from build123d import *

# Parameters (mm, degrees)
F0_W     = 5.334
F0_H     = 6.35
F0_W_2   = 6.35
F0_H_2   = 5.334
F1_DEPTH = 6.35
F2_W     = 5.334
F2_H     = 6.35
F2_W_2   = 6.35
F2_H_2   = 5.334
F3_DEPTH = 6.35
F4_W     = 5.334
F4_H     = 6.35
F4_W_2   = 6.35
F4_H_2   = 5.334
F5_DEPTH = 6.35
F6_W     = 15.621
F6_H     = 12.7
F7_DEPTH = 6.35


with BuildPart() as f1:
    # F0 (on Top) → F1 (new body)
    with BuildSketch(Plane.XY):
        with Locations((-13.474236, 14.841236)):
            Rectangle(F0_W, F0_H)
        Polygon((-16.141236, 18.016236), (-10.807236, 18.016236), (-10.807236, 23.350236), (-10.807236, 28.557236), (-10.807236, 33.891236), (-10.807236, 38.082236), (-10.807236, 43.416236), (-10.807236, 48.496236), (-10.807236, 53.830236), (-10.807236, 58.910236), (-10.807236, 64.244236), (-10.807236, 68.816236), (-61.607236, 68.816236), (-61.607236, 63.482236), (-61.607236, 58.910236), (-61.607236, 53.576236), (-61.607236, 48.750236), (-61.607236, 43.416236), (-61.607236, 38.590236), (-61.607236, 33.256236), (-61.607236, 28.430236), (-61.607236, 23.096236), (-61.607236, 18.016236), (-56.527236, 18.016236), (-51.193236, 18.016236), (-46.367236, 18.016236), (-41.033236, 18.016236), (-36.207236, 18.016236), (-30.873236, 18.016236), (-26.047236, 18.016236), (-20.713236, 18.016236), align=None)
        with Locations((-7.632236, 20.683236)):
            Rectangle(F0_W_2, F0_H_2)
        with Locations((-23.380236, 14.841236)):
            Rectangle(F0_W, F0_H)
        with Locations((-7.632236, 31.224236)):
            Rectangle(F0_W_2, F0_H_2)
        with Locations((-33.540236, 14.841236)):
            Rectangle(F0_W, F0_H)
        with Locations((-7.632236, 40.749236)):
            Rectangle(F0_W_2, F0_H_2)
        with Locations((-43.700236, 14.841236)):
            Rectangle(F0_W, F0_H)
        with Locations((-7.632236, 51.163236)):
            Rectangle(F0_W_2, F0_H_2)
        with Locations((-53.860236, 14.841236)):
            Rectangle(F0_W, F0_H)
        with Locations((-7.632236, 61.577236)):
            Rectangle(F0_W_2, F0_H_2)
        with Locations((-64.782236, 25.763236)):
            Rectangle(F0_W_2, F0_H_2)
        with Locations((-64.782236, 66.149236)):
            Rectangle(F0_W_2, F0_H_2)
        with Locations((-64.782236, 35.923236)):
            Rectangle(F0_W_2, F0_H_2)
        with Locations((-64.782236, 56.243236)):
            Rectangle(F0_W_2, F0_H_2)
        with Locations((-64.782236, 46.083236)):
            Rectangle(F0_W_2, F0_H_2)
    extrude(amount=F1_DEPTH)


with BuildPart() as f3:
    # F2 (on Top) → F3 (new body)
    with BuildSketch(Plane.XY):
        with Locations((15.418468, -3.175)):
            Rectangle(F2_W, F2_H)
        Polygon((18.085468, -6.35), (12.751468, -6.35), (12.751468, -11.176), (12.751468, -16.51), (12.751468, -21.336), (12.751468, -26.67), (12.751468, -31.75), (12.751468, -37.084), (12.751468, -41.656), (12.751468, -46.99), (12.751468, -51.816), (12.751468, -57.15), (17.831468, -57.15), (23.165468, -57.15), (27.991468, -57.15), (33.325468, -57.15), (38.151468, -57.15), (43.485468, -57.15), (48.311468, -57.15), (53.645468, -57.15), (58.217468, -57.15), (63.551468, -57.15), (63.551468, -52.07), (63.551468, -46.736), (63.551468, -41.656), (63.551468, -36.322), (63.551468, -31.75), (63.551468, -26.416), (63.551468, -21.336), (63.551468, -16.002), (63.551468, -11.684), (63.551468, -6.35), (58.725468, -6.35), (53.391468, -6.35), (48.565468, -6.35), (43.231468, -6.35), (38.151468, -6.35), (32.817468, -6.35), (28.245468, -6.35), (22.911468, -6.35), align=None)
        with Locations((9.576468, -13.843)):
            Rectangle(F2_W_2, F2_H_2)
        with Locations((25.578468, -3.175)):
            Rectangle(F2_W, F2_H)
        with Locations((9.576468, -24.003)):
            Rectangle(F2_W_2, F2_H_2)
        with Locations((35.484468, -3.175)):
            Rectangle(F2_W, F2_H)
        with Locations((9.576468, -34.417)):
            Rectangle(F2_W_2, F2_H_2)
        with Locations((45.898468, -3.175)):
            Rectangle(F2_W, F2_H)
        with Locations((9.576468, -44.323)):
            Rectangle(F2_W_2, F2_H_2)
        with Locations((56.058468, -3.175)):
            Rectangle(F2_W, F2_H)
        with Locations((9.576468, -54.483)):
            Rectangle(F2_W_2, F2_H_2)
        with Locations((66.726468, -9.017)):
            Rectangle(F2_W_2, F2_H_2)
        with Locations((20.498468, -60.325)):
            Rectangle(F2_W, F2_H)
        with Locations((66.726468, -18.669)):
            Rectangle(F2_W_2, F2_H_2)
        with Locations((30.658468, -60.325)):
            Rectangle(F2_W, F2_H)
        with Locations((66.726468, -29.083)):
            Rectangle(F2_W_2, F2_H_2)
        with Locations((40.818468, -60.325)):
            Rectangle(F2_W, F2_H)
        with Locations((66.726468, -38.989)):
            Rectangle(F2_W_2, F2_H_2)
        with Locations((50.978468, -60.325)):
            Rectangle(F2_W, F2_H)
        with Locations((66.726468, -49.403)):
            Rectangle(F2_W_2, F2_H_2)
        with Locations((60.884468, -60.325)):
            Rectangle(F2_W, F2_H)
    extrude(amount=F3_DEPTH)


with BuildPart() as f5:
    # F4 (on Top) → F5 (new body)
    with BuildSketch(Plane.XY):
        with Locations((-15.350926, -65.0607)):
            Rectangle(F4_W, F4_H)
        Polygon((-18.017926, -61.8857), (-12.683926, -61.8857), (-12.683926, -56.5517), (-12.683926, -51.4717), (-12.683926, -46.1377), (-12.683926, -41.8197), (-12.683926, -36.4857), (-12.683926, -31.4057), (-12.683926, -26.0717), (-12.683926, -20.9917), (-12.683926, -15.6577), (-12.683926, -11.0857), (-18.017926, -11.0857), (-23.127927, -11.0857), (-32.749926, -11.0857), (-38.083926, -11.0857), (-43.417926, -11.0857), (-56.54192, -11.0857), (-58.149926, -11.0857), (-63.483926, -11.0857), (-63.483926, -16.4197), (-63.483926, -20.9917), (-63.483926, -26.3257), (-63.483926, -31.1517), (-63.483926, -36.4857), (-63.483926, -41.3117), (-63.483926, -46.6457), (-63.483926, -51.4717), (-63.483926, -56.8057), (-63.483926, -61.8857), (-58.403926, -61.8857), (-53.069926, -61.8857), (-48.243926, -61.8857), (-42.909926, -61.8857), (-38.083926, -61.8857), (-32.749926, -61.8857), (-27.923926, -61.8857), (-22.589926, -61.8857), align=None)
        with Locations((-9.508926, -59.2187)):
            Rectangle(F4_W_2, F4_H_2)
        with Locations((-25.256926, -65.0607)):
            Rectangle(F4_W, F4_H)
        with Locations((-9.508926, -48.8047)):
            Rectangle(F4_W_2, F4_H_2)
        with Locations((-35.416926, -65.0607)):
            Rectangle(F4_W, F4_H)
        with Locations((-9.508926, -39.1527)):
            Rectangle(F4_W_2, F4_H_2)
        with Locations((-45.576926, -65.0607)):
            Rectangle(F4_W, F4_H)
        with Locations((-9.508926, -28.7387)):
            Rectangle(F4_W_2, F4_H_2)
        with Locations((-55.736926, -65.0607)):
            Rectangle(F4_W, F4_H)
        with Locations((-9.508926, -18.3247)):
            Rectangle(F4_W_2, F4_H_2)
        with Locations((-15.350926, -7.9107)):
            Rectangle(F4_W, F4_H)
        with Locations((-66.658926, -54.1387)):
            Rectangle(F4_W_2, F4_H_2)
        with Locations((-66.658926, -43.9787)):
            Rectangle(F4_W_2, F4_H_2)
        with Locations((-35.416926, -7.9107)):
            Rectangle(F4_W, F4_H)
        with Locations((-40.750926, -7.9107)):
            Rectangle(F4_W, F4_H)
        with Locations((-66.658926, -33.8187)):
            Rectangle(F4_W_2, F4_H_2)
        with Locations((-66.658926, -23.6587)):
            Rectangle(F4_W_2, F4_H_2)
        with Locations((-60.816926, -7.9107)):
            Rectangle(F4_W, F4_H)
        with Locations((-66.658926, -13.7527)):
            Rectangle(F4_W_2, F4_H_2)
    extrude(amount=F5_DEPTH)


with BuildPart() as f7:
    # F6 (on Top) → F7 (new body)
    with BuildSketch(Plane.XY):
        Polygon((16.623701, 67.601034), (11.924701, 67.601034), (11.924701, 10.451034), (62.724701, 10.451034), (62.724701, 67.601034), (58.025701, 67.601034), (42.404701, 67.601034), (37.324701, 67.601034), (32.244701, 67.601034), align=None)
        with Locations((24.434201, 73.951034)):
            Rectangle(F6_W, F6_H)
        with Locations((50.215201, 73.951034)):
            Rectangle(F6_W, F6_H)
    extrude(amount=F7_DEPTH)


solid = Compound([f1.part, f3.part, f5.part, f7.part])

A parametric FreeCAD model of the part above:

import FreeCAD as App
import Part
import Sketcher

V = App.Vector
Q = App.Units.Quantity


def add_polygon(sketch, points):
    """Adds a closed chain of lines whose ends are joined by coincident constraints."""
    first, n = sketch.GeometryCount, len(points)
    for a, b in zip(points, points[1:] + points[:1]):
        sketch.addGeometry(Part.LineSegment(App.Vector(*a, 0), App.Vector(*b, 0)), False)
    for i in range(n):
        sketch.addConstraint(Sketcher.Constraint("Coincident", first + i, 2, first + (i + 1) % n, 1))

doc = App.newDocument("Part")
params = doc.addObject("Spreadsheet::Sheet", "Params")
for row, (alias, value) in enumerate([
    ("sketch1_width", "0.2 in"),
    ("sketch1_width2", "0.21 in"),
    ("sketch1_width3", "0.25 in"),
    ("sketch1_height", "0.205 in"),
    ("pad1_length", "0.25 in"),
    ("sketch2_width", "0.2 in"),
    ("sketch2_width2", "0.25 in"),
    ("sketch2_width3", "0.45 in"),
    ("sketch2_width4", "0.21 in"),
    ("pad2_length", "0.25 in"),
    ("sketch3_width", "0.2 in"),
    ("sketch3_width2", "0.21 in"),
    ("sketch3_width3", "0.25 in"),
    ("sketch3_width4", "0.58 in"),
    ("pad3_length", "0.25 in"),
    ("sketch4_width", "2 in"),
    ("sketch4_width2", "0.4 in"),
    ("sketch4_height", "0.5 in"),
    ("sketch4_height2", "2.25 in"),
    ("sketch4_width3", "0.185 in"),
    ("pad4_length", "0.25 in"),
], start=1):
    params.set(f"A{row}", alias)
    params.set(f"B{row}", "=" + value)
    params.setAlias(f"B{row}", alias)

body = doc.addObject("PartDesign::Body", "Body")

sketch1 = body.newObject("Sketcher::SketchObject", "Sketch")
sketch1.AttachmentSupport = (doc.getObject("XY_Plane"), [""])
sketch1.MapMode = "FlatFace"
add_polygon(sketch1, [(-16.1, 18), (-16.1, 11.7), (-10.8, 11.7), (-10.8, 18), (-4.5, 18), (-4.5, 23.4), (-10.8, 23.4), (-10.8, 28.6), (-4.5, 28.6), (-4.5, 33.9), (-10.8, 33.9), (-10.8, 38.1), (-4.5, 38.1), (-4.5, 43.4), (-10.8, 43.4), (-10.8, 48.5), (-4.5, 48.5), (-4.5, 53.8), (-10.8, 53.8), (-10.8, 58.9), (-4.5, 58.9), (-4.5, 64.2), (-10.8, 64.2), (-10.8, 68.8), (-68, 68.8), (-68, 63.5), (-61.6, 63.5), (-61.6, 58.9), (-68, 58.9), (-68, 53.6), (-61.6, 53.6), (-61.6, 48.8), (-68, 48.8), (-68, 43.4), (-61.6, 43.4), (-61.6, 38.6), (-68, 38.6), (-68, 33.3), (-61.6, 33.3), (-61.6, 28.4), (-68, 28.4), (-68, 23.1), (-61.6, 23.1), (-61.6, 18), (-56.5, 18), (-56.5, 11.7), (-51.2, 11.7), (-51.2, 18), (-46.4, 18), (-46.4, 11.7), (-41, 11.7), (-41, 18), (-36.2, 18), (-36.2, 11.7), (-30.9, 11.7), (-30.9, 18), (-26, 18), (-26, 11.7), (-20.7, 11.7), (-20.7, 18)])
sketch1.addConstraint([
    Sketcher.Constraint("Vertical", 0),
    Sketcher.Constraint("Horizontal", 1),
    Sketcher.Constraint("Vertical", 2),
    Sketcher.Constraint("Horizontal", 3),
    Sketcher.Constraint("Vertical", 4),
    Sketcher.Constraint("Horizontal", 5),
    Sketcher.Constraint("Vertical", 6),
    Sketcher.Constraint("Horizontal", 7),
    Sketcher.Constraint("Vertical", 8),
    Sketcher.Constraint("Horizontal", 9),
    Sketcher.Constraint("Vertical", 10),
    Sketcher.Constraint("Horizontal", 11),
    Sketcher.Constraint("Vertical", 12),
    Sketcher.Constraint("Horizontal", 13),
    Sketcher.Constraint("Vertical", 14),
    Sketcher.Constraint("Horizontal", 15),
    Sketcher.Constraint("Vertical", 16),
    Sketcher.Constraint("Horizontal", 17),
    Sketcher.Constraint("Vertical", 18),
    Sketcher.Constraint("Horizontal", 19),
    Sketcher.Constraint("Vertical", 20),
    Sketcher.Constraint("Horizontal", 21),
    Sketcher.Constraint("Vertical", 22),
    Sketcher.Constraint("Horizontal", 23),
    Sketcher.Constraint("Vertical", 24),
    Sketcher.Constraint("Horizontal", 25),
    Sketcher.Constraint("Vertical", 26),
    Sketcher.Constraint("Horizontal", 27),
    Sketcher.Constraint("Vertical", 28),
    Sketcher.Constraint("Horizontal", 29),
    Sketcher.Constraint("Vertical", 30),
    Sketcher.Constraint("Horizontal", 31),
    Sketcher.Constraint("Vertical", 32),
    Sketcher.Constraint("Horizontal", 33),
    Sketcher.Constraint("Vertical", 34),
    Sketcher.Constraint("Horizontal", 35),
    Sketcher.Constraint("Vertical", 36),
    Sketcher.Constraint("Horizontal", 37),
    Sketcher.Constraint("Vertical", 38),
    Sketcher.Constraint("Horizontal", 39),
    Sketcher.Constraint("Vertical", 40),
    Sketcher.Constraint("Horizontal", 41),
    Sketcher.Constraint("Vertical", 42),
    Sketcher.Constraint("Horizontal", 43),
    Sketcher.Constraint("Vertical", 44),
    Sketcher.Constraint("Horizontal", 45),
    Sketcher.Constraint("Vertical", 46),
    Sketcher.Constraint("Horizontal", 47),
    Sketcher.Constraint("Vertical", 48),
    Sketcher.Constraint("Horizontal", 49),
    Sketcher.Constraint("Vertical", 50),
    Sketcher.Constraint("Horizontal", 51),
    Sketcher.Constraint("Vertical", 52),
    Sketcher.Constraint("Horizontal", 53),
    Sketcher.Constraint("Vertical", 54),
    Sketcher.Constraint("Horizontal", 55),
    Sketcher.Constraint("Vertical", 56),
    Sketcher.Constraint("Horizontal", 57),
    Sketcher.Constraint("Vertical", 58),
    Sketcher.Constraint("Horizontal", 59),
    Sketcher.Constraint("Horizontal", 19, 2, 26, 2),
    Sketcher.Constraint("Horizontal", 13, 2, 32, 2),
    Sketcher.Constraint("Horizontal", 3, 2, 42, 2),
    Sketcher.Constraint("Horizontal", 1, 2, 44, 2),
    Sketcher.Constraint("Horizontal", 43, 2, 46, 2),
    Sketcher.Constraint("Horizontal", 45, 2, 48, 2),
    Sketcher.Constraint("Horizontal", 47, 2, 50, 2),
    Sketcher.Constraint("Horizontal", 49, 2, 52, 2),
    Sketcher.Constraint("Horizontal", 51, 2, 54, 2),
    Sketcher.Constraint("Horizontal", 53, 2, 56, 2),
    Sketcher.Constraint("Horizontal", 55, 2, 58, 2),
    Sketcher.Constraint("Vertical", 2, 2, 5, 2),
    Sketcher.Constraint("Vertical", 4, 2, 7, 2),
    Sketcher.Constraint("Vertical", 6, 2, 9, 2),
    Sketcher.Constraint("Vertical", 8, 2, 11, 2),
    Sketcher.Constraint("Vertical", 10, 2, 13, 2),
    Sketcher.Constraint("Vertical", 12, 2, 15, 2),
    Sketcher.Constraint("Vertical", 14, 2, 17, 2),
    Sketcher.Constraint("Vertical", 16, 2, 19, 2),
    Sketcher.Constraint("Vertical", 18, 2, 21, 2),
    Sketcher.Constraint("Vertical", 24, 2, 27, 2),
    Sketcher.Constraint("Vertical", 26, 2, 29, 2),
    Sketcher.Constraint("Vertical", 28, 2, 31, 2),
    Sketcher.Constraint("Vertical", 30, 2, 33, 2),
    Sketcher.Constraint("Vertical", 32, 2, 35, 2),
    Sketcher.Constraint("Vertical", 34, 2, 37, 2),
    Sketcher.Constraint("Vertical", 36, 2, 39, 2),
    Sketcher.Constraint("Vertical", 38, 2, 41, 2),
    Sketcher.Constraint("Equal", 21, 25),
    Sketcher.Constraint("Equal", 1, 45),
    Sketcher.Constraint("Equal", 45, 49),
    Sketcher.Constraint("Equal", 47, 51),
    Sketcher.Constraint("Equal", 49, 53),
    Sketcher.Constraint("Equal", 51, 55),
    Sketcher.Constraint("Equal", 53, 57),
    Sketcher.Constraint("Equal", 41, 0),
    Sketcher.Constraint("Equal", 57, 4),
    Sketcher.Constraint("Equal", 4, 8),
    Sketcher.Constraint("Equal", 8, 12),
    Sketcher.Constraint("Equal", 43, 14),
    Sketcher.Constraint("Equal", 12, 16),
    Sketcher.Constraint("Equal", 14, 18),
    Sketcher.Constraint("Equal", 16, 20),
    Sketcher.Constraint("Equal", 59, 22),
    Sketcher.Constraint("Equal", 20, 24),
    Sketcher.Constraint("Equal", 24, 28),
    Sketcher.Constraint("Equal", 55, 30),
    Sketcher.Constraint("Equal", 28, 32),
    Sketcher.Constraint("Equal", 30, 34),
    Sketcher.Constraint("Equal", 32, 36),
    Sketcher.Constraint("Equal", 34, 38),
    Sketcher.Constraint("Equal", 36, 40),
    Sketcher.Constraint("Equal", 18, 42),
    Sketcher.Constraint("DistanceX", 43, 1, 43, 2, Q("0.2 in")),
    Sketcher.Constraint("DistanceX", 25, 2, 21, 2, Q("2 in")),
    Sketcher.Constraint("DistanceX", 1, 1, 1, 2, Q("0.21 in")),
    Sketcher.Constraint("DistanceX", 3, 1, 3, 2, Q("0.25 in")),
    Sketcher.Constraint("DistanceY", 6, 1, 6, 2, Q("0.205 in")),
    Sketcher.Constraint("DistanceX", 0, 2, -1, 1, 16.141236),
    Sketcher.Constraint("DistanceY", -1, 1, 0, 2, 11.666236),
])
sketch1.setExpression("Constraints[173]", "Params.sketch1_width")
sketch1.setExpression("Constraints[175]", "Params.sketch1_width2")
sketch1.setExpression("Constraints[176]", "Params.sketch1_width3")
sketch1.setExpression("Constraints[177]", "Params.sketch1_height")
pad1 = body.newObject("PartDesign::Pad", "Pad")
pad1.Profile = sketch1
pad1.setExpression("Length", "Params.pad1_length")
body2 = doc.addObject("PartDesign::Body", "Body001")

sketch2 = body2.newObject("Sketcher::SketchObject", "Sketch001")
sketch2.AttachmentSupport = (doc.getObject("XY_Plane001"), [""])
sketch2.MapMode = "FlatFace"
add_polygon(sketch2, [(12.8, 0), (12.8, -11.2), (6.4, -11.2), (6.4, -16.5), (12.8, -16.5), (12.8, -21.3), (6.4, -21.3), (6.4, -26.7), (12.8, -26.7), (12.8, -31.8), (6.4, -31.8), (6.4, -37.1), (12.8, -37.1), (12.8, -41.7), (6.4, -41.7), (6.4, -47), (12.8, -47), (12.8, -51.8), (6.4, -51.8), (6.4, -57.1), (17.8, -57.1), (17.8, -63.5), (23.2, -63.5), (23.2, -57.1), (28, -57.1), (28, -63.5), (33.3, -63.5), (33.3, -57.1), (38.2, -57.1), (38.2, -63.5), (43.5, -63.5), (43.5, -57.1), (48.3, -57.1), (48.3, -63.5), (53.6, -63.5), (53.6, -57.1), (58.2, -57.1), (58.2, -63.5), (63.6, -63.5), (63.6, -52.1), (69.9, -52.1), (69.9, -46.7), (63.6, -46.7), (63.6, -41.7), (69.9, -41.7), (69.9, -36.3), (63.6, -36.3), (63.6, -31.8), (69.9, -31.8), (69.9, -26.4), (63.6, -26.4), (63.6, -21.3), (69.9, -21.3), (69.9, -16), (63.6, -16), (63.6, -11.7), (69.9, -11.7), (69.9, -6.3), (58.7, -6.3), (58.7, 0), (53.4, 0), (53.4, -6.3), (48.6, -6.3), (48.6, 0), (43.2, 0), (43.2, -6.3), (38.2, -6.3), (38.2, 0), (32.8, 0), (32.8, -6.3), (28.2, -6.3), (28.2, 0), (22.9, 0), (22.9, -6.3), (18.1, -6.3), (18.1, 0)])
sketch2.addConstraint([
    Sketcher.Constraint("Vertical", 0),
    Sketcher.Constraint("Horizontal", 1),
    Sketcher.Constraint("Vertical", 2),
    Sketcher.Constraint("Horizontal", 3),
    Sketcher.Constraint("Vertical", 4),
    Sketcher.Constraint("Horizontal", 5),
    Sketcher.Constraint("Vertical", 6),
    Sketcher.Constraint("Horizontal", 7),
    Sketcher.Constraint("Vertical", 8),
    Sketcher.Constraint("Horizontal", 9),
    Sketcher.Constraint("Vertical", 10),
    Sketcher.Constraint("Horizontal", 11),
    Sketcher.Constraint("Vertical", 12),
    Sketcher.Constraint("Horizontal", 13),
    Sketcher.Constraint("Vertical", 14),
    Sketcher.Constraint("Horizontal", 15),
    Sketcher.Constraint("Vertical", 16),
    Sketcher.Constraint("Horizontal", 17),
    Sketcher.Constraint("Vertical", 18),
    Sketcher.Constraint("Horizontal", 19),
    Sketcher.Constraint("Vertical", 20),
    Sketcher.Constraint("Horizontal", 21),
    Sketcher.Constraint("Vertical", 22),
    Sketcher.Constraint("Horizontal", 23),
    Sketcher.Constraint("Vertical", 24),
    Sketcher.Constraint("Horizontal", 25),
    Sketcher.Constraint("Vertical", 26),
    Sketcher.Constraint("Horizontal", 27),
    Sketcher.Constraint("Vertical", 28),
    Sketcher.Constraint("Horizontal", 29),
    Sketcher.Constraint("Vertical", 30),
    Sketcher.Constraint("Horizontal", 31),
    Sketcher.Constraint("Vertical", 32),
    Sketcher.Constraint("Horizontal", 33),
    Sketcher.Constraint("Vertical", 34),
    Sketcher.Constraint("Horizontal", 35),
    Sketcher.Constraint("Vertical", 36),
    Sketcher.Constraint("Horizontal", 37),
    Sketcher.Constraint("Vertical", 38),
    Sketcher.Constraint("Horizontal", 39),
    Sketcher.Constraint("Vertical", 40),
    Sketcher.Constraint("Horizontal", 41),
    Sketcher.Constraint("Vertical", 42),
    Sketcher.Constraint("Horizontal", 43),
    Sketcher.Constraint("Vertical", 44),
    Sketcher.Constraint("Horizontal", 45),
    Sketcher.Constraint("Vertical", 46),
    Sketcher.Constraint("Horizontal", 47),
    Sketcher.Constraint("Vertical", 48),
    Sketcher.Constraint("Horizontal", 49),
    Sketcher.Constraint("Vertical", 50),
    Sketcher.Constraint("Horizontal", 51),
    Sketcher.Constraint("Vertical", 52),
    Sketcher.Constraint("Horizontal", 53),
    Sketcher.Constraint("Vertical", 54),
    Sketcher.Constraint("Horizontal", 55),
    Sketcher.Constraint("Vertical", 56),
    Sketcher.Constraint("Horizontal", 57),
    Sketcher.Constraint("Vertical", 58),
    Sketcher.Constraint("Horizontal", 59),
    Sketcher.Constraint("Vertical", 60),
    Sketcher.Constraint("Horizontal", 61),
    Sketcher.Constraint("Vertical", 62),
    Sketcher.Constraint("Horizontal", 63),
    Sketcher.Constraint("Vertical", 64),
    Sketcher.Constraint("Horizontal", 65),
    Sketcher.Constraint("Vertical", 66),
    Sketcher.Constraint("Horizontal", 67),
    Sketcher.Constraint("Vertical", 68),
    Sketcher.Constraint("Horizontal", 69),
    Sketcher.Constraint("Vertical", 70),
    Sketcher.Constraint("Horizontal", 71),
    Sketcher.Constraint("Vertical", 72),
    Sketcher.Constraint("Horizontal", 73),
    Sketcher.Constraint("Vertical", 74),
    Sketcher.Constraint("Horizontal", 75),
    Sketcher.Constraint("PointOnObject", 58, 2, -1),
    Sketcher.Constraint("PointOnObject", 62, 2, -1),
    Sketcher.Constraint("PointOnObject", 66, 2, -1),
    Sketcher.Constraint("PointOnObject", 70, 2, -1),
    Sketcher.Constraint("PointOnObject", 74, 2, -1),
    Sketcher.Constraint("Horizontal", 19, 2, 22, 2),
    Sketcher.Constraint("Horizontal", 21, 2, 24, 2),
    Sketcher.Constraint("Horizontal", 23, 2, 26, 2),
    Sketcher.Constraint("Horizontal", 25, 2, 28, 2),
    Sketcher.Constraint("Horizontal", 27, 2, 30, 2),
    Sketcher.Constraint("Horizontal", 29, 2, 32, 2),
    Sketcher.Constraint("Horizontal", 31, 2, 34, 2),
    Sketcher.Constraint("Horizontal", 33, 2, 36, 2),
    Sketcher.Constraint("Horizontal", 13, 2, 42, 2),
    Sketcher.Constraint("Horizontal", 9, 2, 46, 2),
    Sketcher.Constraint("Horizontal", 5, 2, 50, 2),
    Sketcher.Constraint("Horizontal", 57, 2, 60, 2),
    Sketcher.Constraint("Horizontal", 61, 2, 64, 2),
    Sketcher.Constraint("Horizontal", 65, 2, 68, 2),
    Sketcher.Constraint("Horizontal", 69, 2, 72, 2),
    Sketcher.Constraint("Vertical", 0, 2, 3, 2),
    Sketcher.Constraint("Vertical", 2, 2, 5, 2),
    Sketcher.Constraint("Vertical", 4, 2, 7, 2),
    Sketcher.Constraint("Vertical", 6, 2, 9, 2),
    Sketcher.Constraint("Vertical", 8, 2, 11, 2),
    Sketcher.Constraint("Vertical", 10, 2, 13, 2),
    Sketcher.Constraint("Vertical", 12, 2, 15, 2),
    Sketcher.Constraint("Vertical", 14, 2, 17, 2),
    Sketcher.Constraint("Vertical", 38, 2, 41, 2),
    Sketcher.Constraint("Vertical", 40, 2, 43, 2),
    Sketcher.Constraint("Vertical", 42, 2, 45, 2),
    Sketcher.Constraint("Vertical", 44, 2, 47, 2),
    Sketcher.Constraint("Vertical", 46, 2, 49, 2),
    Sketcher.Constraint("Vertical", 48, 2, 51, 2),
    Sketcher.Constraint("Vertical", 50, 2, 53, 2),
    Sketcher.Constraint("Vertical", 52, 2, 55, 2),
    Sketcher.Constraint("Vertical", 28, 2, 65, 2),
    Sketcher.Constraint("Equal", 21, 25),
    Sketcher.Constraint("Equal", 23, 27),
    Sketcher.Constraint("Equal", 25, 29),
    Sketcher.Constraint("Equal", 27, 31),
    Sketcher.Constraint("Equal", 29, 33),
    Sketcher.Constraint("Equal", 33, 37),
    Sketcher.Constraint("Equal", 17, 39),
    Sketcher.Constraint("Equal", 37, 59),
    Sketcher.Constraint("Equal", 31, 61),
    Sketcher.Constraint("Equal", 59, 63),
    Sketcher.Constraint("Equal", 63, 67),
    Sketcher.Constraint("Equal", 35, 69),
    Sketcher.Constraint("Equal", 67, 71),
    Sketcher.Constraint("Equal", 61, 73),
    Sketcher.Constraint("Equal", 71, 75),
    Sketcher.Constraint("Equal", 57, 0),
    Sketcher.Constraint("Equal", 75, 2),
    Sketcher.Constraint("Equal", 73, 4),
    Sketcher.Constraint("Equal", 2, 6),
    Sketcher.Constraint("Equal", 65, 8),
    Sketcher.Constraint("Equal", 6, 10),
    Sketcher.Constraint("Equal", 69, 12),
    Sketcher.Constraint("Equal", 10, 14),
    Sketcher.Constraint("Equal", 4, 16),
    Sketcher.Constraint("Equal", 14, 18),
    Sketcher.Constraint("Equal", 55, 20),
    Sketcher.Constraint("Equal", 19, 38),
    Sketcher.Constraint("Equal", 18, 40),
    Sketcher.Constraint("Equal", 8, 42),
    Sketcher.Constraint("Equal", 40, 44),
    Sketcher.Constraint("Equal", 44, 48),
    Sketcher.Constraint("Equal", 48, 52),
    Sketcher.Constraint("Equal", 52, 56),
    Sketcher.Constraint("Equal", 36, 58),
    Sketcher.Constraint("DistanceX", 65, 2, 65, 1, Q("0.2 in")),
    Sketcher.Constraint("DistanceX", 1, 2, 1, 1, Q("0.25 in")),
    Sketcher.Constraint("DistanceX", 19, 1, 19, 2, Q("0.45 in")),
    Sketcher.Constraint("DistanceX", 21, 1, 21, 2, Q("0.21 in")),
    Sketcher.Constraint("DistanceX", -1, 1, 1, 2, 6.401468),
])
sketch2.setExpression("Constraints[223]", "Params.sketch2_width")
sketch2.setExpression("Constraints[224]", "Params.sketch2_width2")
sketch2.setExpression("Constraints[225]", "Params.sketch2_width3")
sketch2.setExpression("Constraints[226]", "Params.sketch2_width4")
pad2 = body2.newObject("PartDesign::Pad", "Pad001")
pad2.Profile = sketch2
pad2.setExpression("Length", "Params.pad2_length")
body3 = doc.addObject("PartDesign::Body", "Body002")

sketch3 = body3.newObject("Sketcher::SketchObject", "Sketch002")
sketch3.AttachmentSupport = (doc.getObject("XY_Plane002"), [""])
sketch3.MapMode = "FlatFace"
add_polygon(sketch3, [(-18, -61.9), (-18, -68.2), (-12.7, -68.2), (-12.7, -61.9), (-6.3, -61.9), (-6.3, -56.6), (-12.7, -56.6), (-12.7, -51.5), (-6.3, -51.5), (-6.3, -46.1), (-12.7, -46.1), (-12.7, -41.8), (-6.3, -41.8), (-6.3, -36.5), (-12.7, -36.5), (-12.7, -31.4), (-6.3, -31.4), (-6.3, -26.1), (-12.7, -26.1), (-12.7, -21), (-6.3, -21), (-6.3, -15.7), (-12.7, -15.7), (-12.7, -4.7), (-18, -4.7), (-18, -11.1), (-32.7, -11.1), (-32.7, -4.7), (-43.4, -4.7), (-43.4, -11.1), (-58.1, -11.1), (-58.1, -4.7), (-63.5, -4.7), (-63.5, -11.1), (-69.8, -11.1), (-69.8, -16.4), (-63.5, -16.4), (-63.5, -21), (-69.8, -21), (-69.8, -26.3), (-63.5, -26.3), (-63.5, -31.2), (-69.8, -31.2), (-69.8, -36.5), (-63.5, -36.5), (-63.5, -41.3), (-69.8, -41.3), (-69.8, -46.6), (-63.5, -46.6), (-63.5, -51.5), (-69.8, -51.5), (-69.8, -56.8), (-63.5, -56.8), (-63.5, -61.9), (-58.4, -61.9), (-58.4, -68.2), (-53.1, -68.2), (-53.1, -61.9), (-48.2, -61.9), (-48.2, -68.2), (-42.9, -68.2), (-42.9, -61.9), (-38.1, -61.9), (-38.1, -68.2), (-32.7, -68.2), (-32.7, -61.9), (-27.9, -61.9), (-27.9, -68.2), (-22.6, -68.2), (-22.6, -61.9)])
sketch3.addConstraint([
    Sketcher.Constraint("Vertical", 0),
    Sketcher.Constraint("Horizontal", 1),
    Sketcher.Constraint("Vertical", 2),
    Sketcher.Constraint("Horizontal", 3),
    Sketcher.Constraint("Vertical", 4),
    Sketcher.Constraint("Horizontal", 5),
    Sketcher.Constraint("Vertical", 6),
    Sketcher.Constraint("Horizontal", 7),
    Sketcher.Constraint("Vertical", 8),
    Sketcher.Constraint("Horizontal", 9),
    Sketcher.Constraint("Vertical", 10),
    Sketcher.Constraint("Horizontal", 11),
    Sketcher.Constraint("Vertical", 12),
    Sketcher.Constraint("Horizontal", 13),
    Sketcher.Constraint("Vertical", 14),
    Sketcher.Constraint("Horizontal", 15),
    Sketcher.Constraint("Vertical", 16),
    Sketcher.Constraint("Horizontal", 17),
    Sketcher.Constraint("Vertical", 18),
    Sketcher.Constraint("Horizontal", 19),
    Sketcher.Constraint("Vertical", 20),
    Sketcher.Constraint("Horizontal", 21),
    Sketcher.Constraint("Vertical", 22),
    Sketcher.Constraint("Horizontal", 23),
    Sketcher.Constraint("Vertical", 24),
    Sketcher.Constraint("Horizontal", 25),
    Sketcher.Constraint("Vertical", 26),
    Sketcher.Constraint("Horizontal", 27),
    Sketcher.Constraint("Vertical", 28),
    Sketcher.Constraint("Horizontal", 29),
    Sketcher.Constraint("Vertical", 30),
    Sketcher.Constraint("Horizontal", 31),
    Sketcher.Constraint("Vertical", 32),
    Sketcher.Constraint("Horizontal", 33),
    Sketcher.Constraint("Vertical", 34),
    Sketcher.Constraint("Horizontal", 35),
    Sketcher.Constraint("Vertical", 36),
    Sketcher.Constraint("Horizontal", 37),
    Sketcher.Constraint("Vertical", 38),
    Sketcher.Constraint("Horizontal", 39),
    Sketcher.Constraint("Vertical", 40),
    Sketcher.Constraint("Horizontal", 41),
    Sketcher.Constraint("Vertical", 42),
    Sketcher.Constraint("Horizontal", 43),
    Sketcher.Constraint("Vertical", 44),
    Sketcher.Constraint("Horizontal", 45),
    Sketcher.Constraint("Vertical", 46),
    Sketcher.Constraint("Horizontal", 47),
    Sketcher.Constraint("Vertical", 48),
    Sketcher.Constraint("Horizontal", 49),
    Sketcher.Constraint("Vertical", 50),
    Sketcher.Constraint("Horizontal", 51),
    Sketcher.Constraint("Vertical", 52),
    Sketcher.Constraint("Horizontal", 53),
    Sketcher.Constraint("Vertical", 54),
    Sketcher.Constraint("Horizontal", 55),
    Sketcher.Constraint("Vertical", 56),
    Sketcher.Constraint("Horizontal", 57),
    Sketcher.Constraint("Vertical", 58),
    Sketcher.Constraint("Horizontal", 59),
    Sketcher.Constraint("Vertical", 60),
    Sketcher.Constraint("Horizontal", 61),
    Sketcher.Constraint("Vertical", 62),
    Sketcher.Constraint("Horizontal", 63),
    Sketcher.Constraint("Vertical", 64),
    Sketcher.Constraint("Horizontal", 65),
    Sketcher.Constraint("Vertical", 66),
    Sketcher.Constraint("Horizontal", 67),
    Sketcher.Constraint("Vertical", 68),
    Sketcher.Constraint("Horizontal", 69),
    Sketcher.Constraint("Horizontal", 23, 2, 26, 2),
    Sketcher.Constraint("Horizontal", 25, 2, 28, 2),
    Sketcher.Constraint("Horizontal", 27, 2, 30, 2),
    Sketcher.Constraint("Horizontal", 29, 2, 32, 2),
    Sketcher.Constraint("Horizontal", 19, 2, 36, 2),
    Sketcher.Constraint("Horizontal", 13, 2, 42, 2),
    Sketcher.Constraint("Horizontal", 7, 2, 48, 2),
    Sketcher.Constraint("Horizontal", 3, 2, 52, 2),
    Sketcher.Constraint("Horizontal", 1, 2, 54, 2),
    Sketcher.Constraint("Horizontal", 53, 2, 56, 2),
    Sketcher.Constraint("Horizontal", 55, 2, 58, 2),
    Sketcher.Constraint("Horizontal", 57, 2, 60, 2),
    Sketcher.Constraint("Horizontal", 59, 2, 62, 2),
    Sketcher.Constraint("Horizontal", 61, 2, 64, 2),
    Sketcher.Constraint("Horizontal", 63, 2, 66, 2),
    Sketcher.Constraint("Horizontal", 65, 2, 68, 2),
    Sketcher.Constraint("Vertical", 2, 2, 5, 2),
    Sketcher.Constraint("Vertical", 4, 2, 7, 2),
    Sketcher.Constraint("Vertical", 6, 2, 9, 2),
    Sketcher.Constraint("Vertical", 8, 2, 11, 2),
    Sketcher.Constraint("Vertical", 10, 2, 13, 2),
    Sketcher.Constraint("Vertical", 12, 2, 15, 2),
    Sketcher.Constraint("Vertical", 14, 2, 17, 2),
    Sketcher.Constraint("Vertical", 16, 2, 19, 2),
    Sketcher.Constraint("Vertical", 18, 2, 21, 2),
    Sketcher.Constraint("Vertical", 0, 2, 23, 2),
    Sketcher.Constraint("Vertical", 32, 2, 35, 2),
    Sketcher.Constraint("Vertical", 34, 2, 37, 2),
    Sketcher.Constraint("Vertical", 36, 2, 39, 2),
    Sketcher.Constraint("Vertical", 38, 2, 41, 2),
    Sketcher.Constraint("Vertical", 40, 2, 43, 2),
    Sketcher.Constraint("Vertical", 42, 2, 45, 2),
    Sketcher.Constraint("Vertical", 44, 2, 47, 2),
    Sketcher.Constraint("Vertical", 46, 2, 49, 2),
    Sketcher.Constraint("Vertical", 48, 2, 51, 2),
    Sketcher.Constraint("Vertical", 26, 2, 63, 2),
    Sketcher.Constraint("Equal", 25, 29),
    Sketcher.Constraint("Equal", 23, 31),
    Sketcher.Constraint("Equal", 21, 33),
    Sketcher.Constraint("Equal", 31, 55),
    Sketcher.Constraint("Equal", 55, 59),
    Sketcher.Constraint("Equal", 57, 61),
    Sketcher.Constraint("Equal", 59, 63),
    Sketcher.Constraint("Equal", 61, 65),
    Sketcher.Constraint("Equal", 63, 67),
    Sketcher.Constraint("Equal", 51, 0),
    Sketcher.Constraint("Equal", 67, 4),
    Sketcher.Constraint("Equal", 53, 6),
    Sketcher.Constraint("Equal", 4, 8),
    Sketcher.Constraint("Equal", 8, 12),
    Sketcher.Constraint("Equal", 6, 14),
    Sketcher.Constraint("Equal", 12, 16),
    Sketcher.Constraint("Equal", 14, 18),
    Sketcher.Constraint("Equal", 16, 20),
    Sketcher.Constraint("Equal", 2, 24),
    Sketcher.Constraint("Equal", 20, 34),
    Sketcher.Constraint("Equal", 69, 36),
    Sketcher.Constraint("Equal", 34, 38),
    Sketcher.Constraint("Equal", 65, 40),
    Sketcher.Constraint("Equal", 38, 42),
    Sketcher.Constraint("Equal", 40, 44),
    Sketcher.Constraint("Equal", 42, 46),
    Sketcher.Constraint("Equal", 44, 48),
    Sketcher.Constraint("Equal", 46, 50),
    Sketcher.Constraint("DistanceX", 53, 1, 53, 2, Q("0.2 in")),
    Sketcher.Constraint("DistanceX", 1, 1, 1, 2, Q("0.21 in")),
    Sketcher.Constraint("DistanceX", 3, 1, 3, 2, Q("0.25 in")),
    Sketcher.Constraint("DistanceX", 25, 2, 25, 1, Q("0.58 in")),
    Sketcher.Constraint("DistanceY", 0, 2, -1, 1, 68.2357),
    Sketcher.Constraint("DistanceX", 0, 2, -1, 1, 18.017926),
])
sketch3.setExpression("Constraints[204]", "Params.sketch3_width")
sketch3.setExpression("Constraints[205]", "Params.sketch3_width2")
sketch3.setExpression("Constraints[206]", "Params.sketch3_width3")
sketch3.setExpression("Constraints[207]", "Params.sketch3_width4")
pad3 = body3.newObject("PartDesign::Pad", "Pad002")
pad3.Profile = sketch3
pad3.setExpression("Length", "Params.pad3_length")
body4 = doc.addObject("PartDesign::Body", "Body003")

sketch4 = body4.newObject("Sketcher::SketchObject", "Sketch003")
sketch4.AttachmentSupport = (doc.getObject("XY_Plane003"), [""])
sketch4.MapMode = "FlatFace"
add_polygon(sketch4, [(11.9, 67.6), (11.9, 10.5), (62.7, 10.5), (62.7, 67.6), (58, 67.6), (58, 80.3), (42.4, 80.3), (42.4, 67.6), (32.2, 67.6), (32.2, 80.3), (16.6, 80.3), (16.6, 67.6)])
sketch4.addConstraint([
    Sketcher.Constraint("Vertical", 0),
    Sketcher.Constraint("Horizontal", 1),
    Sketcher.Constraint("Vertical", 2),
    Sketcher.Constraint("Horizontal", 3),
    Sketcher.Constraint("Vertical", 4),
    Sketcher.Constraint("Horizontal", 5),
    Sketcher.Constraint("Vertical", 6),
    Sketcher.Constraint("Horizontal", 7),
    Sketcher.Constraint("Vertical", 8),
    Sketcher.Constraint("Horizontal", 9),
    Sketcher.Constraint("Vertical", 10),
    Sketcher.Constraint("Horizontal", 11),
    Sketcher.Constraint("Horizontal", 3, 2, 6, 2),
    Sketcher.Constraint("Horizontal", 5, 2, 8, 2),
    Sketcher.Constraint("Horizontal", 7, 2, 10, 2),
    Sketcher.Constraint("Equal", 5, 9),
    Sketcher.Constraint("Equal", 3, 11),
    Sketcher.Constraint("DistanceX", 1, 1, 1, 2, Q("2 in")),
    Sketcher.Constraint("DistanceX", 7, 2, 7, 1, Q("0.4 in")),
    Sketcher.Constraint("DistanceY", 4, 1, 4, 2, Q("0.5 in")),
    Sketcher.Constraint("DistanceY", 0, 2, 0, 1, Q("2.25 in")),
    Sketcher.Constraint("DistanceX", 3, 2, 3, 1, Q("0.185 in")),
    Sketcher.Constraint("DistanceX", -1, 1, 0, 2, 11.924701),
    Sketcher.Constraint("DistanceY", -1, 1, 0, 2, 10.451034),
])
sketch4.setExpression("Constraints[29]", "Params.sketch4_width")
sketch4.setExpression("Constraints[30]", "Params.sketch4_width2")
sketch4.setExpression("Constraints[31]", "Params.sketch4_height")
sketch4.setExpression("Constraints[32]", "Params.sketch4_height2")
sketch4.setExpression("Constraints[33]", "Params.sketch4_width3")
pad4 = body4.newObject("PartDesign::Pad", "Pad003")
pad4.Profile = sketch4
pad4.setExpression("Length", "Params.pad4_length")

doc.recompute()
